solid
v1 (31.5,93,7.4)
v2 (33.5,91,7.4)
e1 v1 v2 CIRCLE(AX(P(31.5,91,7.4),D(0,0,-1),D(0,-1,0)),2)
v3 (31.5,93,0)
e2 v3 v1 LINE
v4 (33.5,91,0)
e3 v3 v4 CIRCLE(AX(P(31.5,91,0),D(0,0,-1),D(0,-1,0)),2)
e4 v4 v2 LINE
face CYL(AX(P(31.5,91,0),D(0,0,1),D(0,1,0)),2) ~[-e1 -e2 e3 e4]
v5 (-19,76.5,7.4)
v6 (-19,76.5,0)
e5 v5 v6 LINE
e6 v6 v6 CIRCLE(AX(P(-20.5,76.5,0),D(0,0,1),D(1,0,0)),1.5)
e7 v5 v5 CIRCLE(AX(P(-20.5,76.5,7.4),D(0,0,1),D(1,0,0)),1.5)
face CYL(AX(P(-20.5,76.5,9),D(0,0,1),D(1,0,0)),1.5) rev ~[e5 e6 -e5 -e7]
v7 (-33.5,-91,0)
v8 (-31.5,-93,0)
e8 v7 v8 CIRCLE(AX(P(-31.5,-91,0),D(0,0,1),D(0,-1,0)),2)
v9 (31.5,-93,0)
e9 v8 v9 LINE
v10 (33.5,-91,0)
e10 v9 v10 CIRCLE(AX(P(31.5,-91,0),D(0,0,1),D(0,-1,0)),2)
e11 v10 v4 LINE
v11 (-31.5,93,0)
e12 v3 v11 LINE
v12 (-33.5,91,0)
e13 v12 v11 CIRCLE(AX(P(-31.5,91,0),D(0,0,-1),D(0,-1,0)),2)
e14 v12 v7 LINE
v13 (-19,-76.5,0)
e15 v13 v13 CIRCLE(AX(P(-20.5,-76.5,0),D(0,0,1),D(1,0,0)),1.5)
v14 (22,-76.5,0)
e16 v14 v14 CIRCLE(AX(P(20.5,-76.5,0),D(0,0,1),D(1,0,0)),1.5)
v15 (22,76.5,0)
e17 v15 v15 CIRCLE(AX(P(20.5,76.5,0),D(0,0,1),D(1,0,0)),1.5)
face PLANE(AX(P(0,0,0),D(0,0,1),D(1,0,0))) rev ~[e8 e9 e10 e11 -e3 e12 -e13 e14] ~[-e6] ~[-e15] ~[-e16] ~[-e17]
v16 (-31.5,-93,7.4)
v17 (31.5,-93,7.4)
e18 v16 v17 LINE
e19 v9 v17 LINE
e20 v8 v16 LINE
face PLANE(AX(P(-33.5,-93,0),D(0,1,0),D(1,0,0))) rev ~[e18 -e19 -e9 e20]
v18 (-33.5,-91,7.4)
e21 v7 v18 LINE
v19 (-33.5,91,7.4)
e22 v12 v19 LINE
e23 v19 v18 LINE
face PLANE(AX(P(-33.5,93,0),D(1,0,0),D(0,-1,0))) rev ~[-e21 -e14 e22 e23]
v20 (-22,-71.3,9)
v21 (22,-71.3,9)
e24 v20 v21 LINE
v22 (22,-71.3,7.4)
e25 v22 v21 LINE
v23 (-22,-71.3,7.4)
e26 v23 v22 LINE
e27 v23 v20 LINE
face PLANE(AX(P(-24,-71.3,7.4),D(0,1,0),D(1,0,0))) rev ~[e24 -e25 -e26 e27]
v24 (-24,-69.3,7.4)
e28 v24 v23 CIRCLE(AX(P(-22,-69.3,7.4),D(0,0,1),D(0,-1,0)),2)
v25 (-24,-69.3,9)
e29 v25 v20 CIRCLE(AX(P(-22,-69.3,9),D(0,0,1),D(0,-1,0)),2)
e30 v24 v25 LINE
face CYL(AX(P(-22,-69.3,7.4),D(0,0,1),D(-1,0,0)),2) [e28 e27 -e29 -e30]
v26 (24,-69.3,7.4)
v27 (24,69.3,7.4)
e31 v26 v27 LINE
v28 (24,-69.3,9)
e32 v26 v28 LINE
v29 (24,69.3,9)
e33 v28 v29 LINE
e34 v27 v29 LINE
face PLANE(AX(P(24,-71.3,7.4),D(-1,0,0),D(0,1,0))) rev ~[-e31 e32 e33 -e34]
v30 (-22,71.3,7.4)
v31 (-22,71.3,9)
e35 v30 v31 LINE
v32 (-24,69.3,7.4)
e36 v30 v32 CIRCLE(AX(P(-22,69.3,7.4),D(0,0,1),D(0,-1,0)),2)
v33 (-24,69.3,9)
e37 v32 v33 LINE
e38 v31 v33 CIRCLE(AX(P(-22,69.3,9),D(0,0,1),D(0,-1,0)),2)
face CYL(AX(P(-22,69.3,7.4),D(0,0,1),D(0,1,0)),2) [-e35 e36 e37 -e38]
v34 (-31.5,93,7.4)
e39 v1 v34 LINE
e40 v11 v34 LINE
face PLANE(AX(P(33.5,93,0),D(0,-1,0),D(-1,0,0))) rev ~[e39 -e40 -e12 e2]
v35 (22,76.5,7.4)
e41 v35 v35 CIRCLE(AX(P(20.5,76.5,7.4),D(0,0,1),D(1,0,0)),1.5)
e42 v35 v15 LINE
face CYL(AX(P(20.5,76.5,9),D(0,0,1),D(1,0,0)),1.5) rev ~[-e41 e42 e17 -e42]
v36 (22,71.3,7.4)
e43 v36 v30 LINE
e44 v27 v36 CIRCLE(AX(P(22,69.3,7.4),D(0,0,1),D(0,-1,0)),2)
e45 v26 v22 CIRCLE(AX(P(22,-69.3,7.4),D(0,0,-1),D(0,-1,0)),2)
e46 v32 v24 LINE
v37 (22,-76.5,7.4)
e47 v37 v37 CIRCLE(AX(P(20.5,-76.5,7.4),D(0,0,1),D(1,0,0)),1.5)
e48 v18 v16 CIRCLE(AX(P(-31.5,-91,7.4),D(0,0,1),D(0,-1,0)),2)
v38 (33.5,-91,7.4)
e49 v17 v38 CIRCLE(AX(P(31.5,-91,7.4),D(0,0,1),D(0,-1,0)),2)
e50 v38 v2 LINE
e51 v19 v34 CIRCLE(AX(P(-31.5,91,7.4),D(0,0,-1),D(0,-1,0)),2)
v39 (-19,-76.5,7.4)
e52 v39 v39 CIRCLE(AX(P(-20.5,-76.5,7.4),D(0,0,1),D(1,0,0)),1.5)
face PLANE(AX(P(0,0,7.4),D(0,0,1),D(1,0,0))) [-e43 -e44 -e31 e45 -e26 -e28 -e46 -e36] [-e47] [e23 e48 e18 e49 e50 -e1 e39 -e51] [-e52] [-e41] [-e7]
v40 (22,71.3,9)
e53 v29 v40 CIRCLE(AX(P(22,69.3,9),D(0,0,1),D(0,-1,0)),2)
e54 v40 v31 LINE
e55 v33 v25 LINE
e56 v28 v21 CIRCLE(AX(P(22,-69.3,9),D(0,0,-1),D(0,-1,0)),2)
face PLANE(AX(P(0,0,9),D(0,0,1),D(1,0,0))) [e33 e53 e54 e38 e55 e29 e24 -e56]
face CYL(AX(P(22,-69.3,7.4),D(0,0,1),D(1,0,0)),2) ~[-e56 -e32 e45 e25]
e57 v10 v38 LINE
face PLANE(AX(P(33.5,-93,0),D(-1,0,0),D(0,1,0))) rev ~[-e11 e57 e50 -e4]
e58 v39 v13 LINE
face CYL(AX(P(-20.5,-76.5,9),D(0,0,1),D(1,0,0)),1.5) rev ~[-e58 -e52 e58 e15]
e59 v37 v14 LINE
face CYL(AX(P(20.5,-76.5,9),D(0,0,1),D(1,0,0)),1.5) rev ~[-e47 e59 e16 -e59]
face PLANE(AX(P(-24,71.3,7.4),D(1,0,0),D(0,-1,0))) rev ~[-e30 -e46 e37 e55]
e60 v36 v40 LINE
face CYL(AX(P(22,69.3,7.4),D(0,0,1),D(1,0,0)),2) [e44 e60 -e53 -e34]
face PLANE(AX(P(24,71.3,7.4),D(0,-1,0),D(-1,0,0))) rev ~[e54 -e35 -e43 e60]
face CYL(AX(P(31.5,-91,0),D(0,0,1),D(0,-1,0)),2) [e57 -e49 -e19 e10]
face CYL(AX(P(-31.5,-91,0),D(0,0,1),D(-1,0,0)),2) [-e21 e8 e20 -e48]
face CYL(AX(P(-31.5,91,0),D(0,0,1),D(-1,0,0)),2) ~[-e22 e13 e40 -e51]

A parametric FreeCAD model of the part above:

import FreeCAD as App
import Part
import Sketcher
from FreeCAD import Vector
Q = App.Units.Quantity


def edges_at(feature, points):
    """Names of the edges that pass closest to the given points."""
    edges = feature.Shape.Edges
    near = lambda p: min(range(len(edges)), key=lambda i: edges[i].distToShape(Part.Vertex(*p))[0])
    return sorted({f"Edge{near(p) + 1}" for p in points})

doc = App.newDocument("Part")
body = doc.addObject("PartDesign::Body", "Body")

# Sketch on XY plane
sketch1 = doc.addObject("Sketcher::SketchObject", "Sketch")
body.addObject(sketch1)
sketch1.AttachmentSupport = (doc.XY_Plane, [""])
sketch1.MapMode = "FlatFace"
sketch1.addGeometry(Part.LineSegment(Vector(-33.5, 93, 0), Vector(-33.5, -93, 0)), False)
sketch1.addGeometry(Part.LineSegment(Vector(-33.5, -93, 0), Vector(33.5, -93, 0)), False)
sketch1.addGeometry(Part.LineSegment(Vector(33.5, -93, 0), Vector(33.5, 93, 0)), False)
sketch1.addGeometry(Part.LineSegment(Vector(33.5, 93, 0), Vector(-33.5, 93, 0)), False)
sketch1.addConstraint(Sketcher.Constraint("Coincident", 0, 2, 1, 1))
sketch1.addConstraint(Sketcher.Constraint("Coincident", 1, 2, 2, 1))
sketch1.addConstraint(Sketcher.Constraint("Coincident", 2, 2, 3, 1))
sketch1.addConstraint(Sketcher.Constraint("Coincident", 3, 2, 0, 1))
sketch1.addConstraint(Sketcher.Constraint("Vertical", 0))
sketch1.addConstraint(Sketcher.Constraint("Horizontal", 1))
sketch1.addConstraint(Sketcher.Constraint("Vertical", 2))
sketch1.addConstraint(Sketcher.Constraint("Horizontal", 3))
sketch1.addConstraint(Sketcher.Constraint("Symmetric", 0, 2, 2, 2, -1, 1))
sketch1.addConstraint(Sketcher.Constraint("DistanceX", 1, 1, 1, 2, Q("67 mm")))
sketch1.addConstraint(Sketcher.Constraint("DistanceY", 0, 2, 0, 1, Q("186 mm")))
pad1 = doc.addObject("PartDesign::Pad", "Pad")
body.addObject(pad1)
pad1.Profile = sketch1
pad1.Length = 7.4

# Sketch on XY plane
sketch2 = doc.addObject("Sketcher::SketchObject", "Sketch001")
body.addObject(sketch2)
sketch2.AttachmentSupport = (doc.XY_Plane, [""])
sketch2.MapMode = "FlatFace"
sketch2.AttachmentOffset = App.Placement(Vector(0, 0, 7.4), App.Rotation())
sketch2.addGeometry(Part.LineSegment(Vector(24, -71.3, 0), Vector(24, 71.3, 0)), False)
sketch2.addGeometry(Part.LineSegment(Vector(24, 71.3, 0), Vector(-24, 71.3, 0)), False)
sketch2.addGeometry(Part.LineSegment(Vector(-24, 71.3, 0), Vector(-24, -71.3, 0)), False)
sketch2.addGeometry(Part.LineSegment(Vector(-24, -71.3, 0), Vector(24, -71.3, 0)), False)
sketch2.addConstraint(Sketcher.Constraint("Coincident", 0, 2, 1, 1))
sketch2.addConstraint(Sketcher.Constraint("Coincident", 1, 2, 2, 1))
sketch2.addConstraint(Sketcher.Constraint("Coincident", 2, 2, 3, 1))
sketch2.addConstraint(Sketcher.Constraint("Coincident", 3, 2, 0, 1))
sketch2.addConstraint(Sketcher.Constraint("Vertical", 0))
sketch2.addConstraint(Sketcher.Constraint("Horizontal", 1))
sketch2.addConstraint(Sketcher.Constraint("Vertical", 2))
sketch2.addConstraint(Sketcher.Constraint("Horizontal", 3))
sketch2.addConstraint(Sketcher.Constraint("Symmetric", 0, 2, 2, 2, -1, 1))
sketch2.addConstraint(Sketcher.Constraint("DistanceX", 1, 2, 1, 1, Q("48 mm")))
sketch2.addConstraint(Sketcher.Constraint("DistanceY", 0, 1, 0, 2, Q("142.6 mm")))
pad2 = doc.addObject("PartDesign::Pad", "Pad001")
body.addObject(pad2)
pad2.Profile = sketch2
pad2.Length = 1.6
doc.recompute()

fillet = doc.addObject("PartDesign::Fillet", "Fillet")
body.addObject(fillet)
fillet.Base = (pad2, edges_at(pad2, [
    (24, 71.3, 8.2),
    (-24, 71.3, 8.2),
    (-24, -71.3, 8.2),
    (24, -71.3, 8.2),
    (-33.5, 93, 3.7),
    (33.5, 93, 3.7),
    (-33.5, -93, 3.7),
    (33.5, -93, 3.7),
]))
fillet.Radius = 2

# Sketch on XY plane
sketch3 = doc.addObject("Sketcher::SketchObject", "Sketch002")
body.addObject(sketch3)
sketch3.AttachmentSupport = (doc.XY_Plane, [""])
sketch3.MapMode = "FlatFace"
sketch3.AttachmentOffset = App.Placement(Vector(0, 0, 9), App.Rotation())
sketch3.addGeometry(Part.Circle(Vector(-20.5, -76.5, 0), Vector(0, 0, 1), 1.5), False)
sketch3.addGeometry(Part.Circle(Vector(-20.5, 76.5, 0), Vector(0, 0, 1), 1.5), False)
sketch3.addGeometry(Part.Circle(Vector(20.5, -76.5, 0), Vector(0, 0, 1), 1.5), False)
sketch3.addGeometry(Part.Circle(Vector(20.5, 76.5, 0), Vector(0, 0, 1), 1.5), False)
sketch3.addConstraint(Sketcher.Constraint("Equal", 0, 1))
sketch3.addConstraint(Sketcher.Constraint("Equal", 1, 2))
sketch3.addConstraint(Sketcher.Constraint("Equal", 2, 3))
sketch3.addConstraint(Sketcher.Constraint("Symmetric", 1, 3, 2, 3, -1, 1))
sketch3.addConstraint(Sketcher.Constraint("Symmetric", 0, 3, 3, 3, -1, 1))
sketch3.addConstraint(Sketcher.Constraint("Symmetric", 0, 3, 2, 3, -2))
sketch3.addConstraint(Sketcher.Constraint("Diameter", 0, Q("3 mm")))
sketch3.addConstraint(Sketcher.Constraint("DistanceY", 0, 3, 1, 3, Q("153 mm")))
sketch3.addConstraint(Sketcher.Constraint("DistanceX", 0, 3, 2, 3, Q("41 mm")))
pocket1 = doc.addObject("PartDesign::Pocket", "Pocket")
body.addObject(pocket1)
pocket1.Profile = sketch3
pocket1.Type = "ThroughAll"

doc.recompute()
